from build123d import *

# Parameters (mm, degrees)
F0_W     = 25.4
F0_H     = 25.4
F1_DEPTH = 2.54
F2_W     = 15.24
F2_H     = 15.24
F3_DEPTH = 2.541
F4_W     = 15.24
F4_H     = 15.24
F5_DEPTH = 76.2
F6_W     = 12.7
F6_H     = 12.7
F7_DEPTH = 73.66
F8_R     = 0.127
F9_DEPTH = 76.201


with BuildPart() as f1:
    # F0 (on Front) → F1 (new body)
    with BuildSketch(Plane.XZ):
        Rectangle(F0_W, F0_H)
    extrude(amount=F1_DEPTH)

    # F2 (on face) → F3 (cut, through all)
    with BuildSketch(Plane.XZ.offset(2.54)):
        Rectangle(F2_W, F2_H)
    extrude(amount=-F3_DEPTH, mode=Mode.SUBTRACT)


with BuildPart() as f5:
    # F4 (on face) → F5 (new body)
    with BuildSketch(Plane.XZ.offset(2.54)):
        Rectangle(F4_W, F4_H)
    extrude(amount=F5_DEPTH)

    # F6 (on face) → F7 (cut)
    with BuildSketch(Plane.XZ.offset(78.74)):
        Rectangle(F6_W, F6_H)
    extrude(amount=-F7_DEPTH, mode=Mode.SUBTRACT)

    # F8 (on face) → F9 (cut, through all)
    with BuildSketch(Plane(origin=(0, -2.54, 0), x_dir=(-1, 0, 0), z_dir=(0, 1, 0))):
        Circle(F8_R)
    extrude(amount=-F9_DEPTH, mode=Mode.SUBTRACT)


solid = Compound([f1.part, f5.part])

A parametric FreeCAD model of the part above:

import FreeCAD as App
import Part
import Sketcher
from FreeCAD import Vector
Q = App.Units.Quantity


def add_polygon(sketch, points):
    """Adds a closed chain of lines whose ends are joined by coincident constraints."""
    first, n = sketch.GeometryCount, len(points)
    for a, b in zip(points, points[1:] + points[:1]):
        sketch.addGeometry(Part.LineSegment(App.Vector(*a, 0), App.Vector(*b, 0)), False)
    for i in range(n):
        sketch.addConstraint(Sketcher.Constraint("Coincident", first + i, 2, first + (i + 1) % n, 1))

doc = App.newDocument("Part")
body = doc.addObject("PartDesign::Body", "Body")

sketch1 = doc.addObject("Sketcher::SketchObject", "Sketch")
body.addObject(sketch1)
sketch1.AttachmentSupport = (doc.XZ_Plane, [""])
sketch1.MapMode = "FlatFace"
add_polygon(sketch1, [(-12.7, 12.7), (-12.7, -12.7), (12.7, -12.7), (12.7, 12.7)])
sketch1.addConstraint([
    Sketcher.Constraint("Vertical", 0),
    Sketcher.Constraint("Horizontal", 1),
    Sketcher.Constraint("Vertical", 2),
    Sketcher.Constraint("Horizontal", 3),
    Sketcher.Constraint("Symmetric", 0, 2, 2, 2, -1, 1),
    Sketcher.Constraint("Equal", 3, 0),
    Sketcher.Constraint("DistanceX", 1, 1, 1, 2, Q("1 in")),
])
pad1 = doc.addObject("PartDesign::Pad", "Pad")
body.addObject(pad1)
pad1.Profile = sketch1
pad1.Length = Q("0.1 in")

sketch2 = doc.addObject("Sketcher::SketchObject", "Sketch001")
body.addObject(sketch2)
sketch2.AttachmentSupport = (doc.XZ_Plane, [""])
sketch2.MapMode = "FlatFace"
sketch2.AttachmentOffset = App.Placement(Vector(0, 0, 0.1 * 25.4), App.Rotation())
add_polygon(sketch2, [(-7.62, 7.62), (-7.62, -7.62), (7.62, -7.62), (7.62, 7.62)])
sketch2.addConstraint([
    Sketcher.Constraint("Vertical", 0),
    Sketcher.Constraint("Horizontal", 1),
    Sketcher.Constraint("Vertical", 2),
    Sketcher.Constraint("Horizontal", 3),
    Sketcher.Constraint("Symmetric", 0, 2, 2, 2, -1, 1),
    Sketcher.Constraint("Equal", 3, 0),
    Sketcher.Constraint("DistanceX", 1, 1, 1, 2, Q("0.6 in")),
])
pocket1 = doc.addObject("PartDesign::Pocket", "Pocket")
body.addObject(pocket1)
pocket1.Profile = sketch2
pocket1.Type = "ThroughAll"
body2 = doc.addObject("PartDesign::Body", "Body001")

sketch3 = doc.addObject("Sketcher::SketchObject", "Sketch002")
body2.addObject(sketch3)
sketch3.AttachmentSupport = (doc.getObject("XZ_Plane001"), [""])
sketch3.MapMode = "FlatFace"
sketch3.AttachmentOffset = App.Placement(Vector(0, 0, 0.1 * 25.4), App.Rotation())
add_polygon(sketch3, [(-7.62, 7.62), (-7.62, -7.62), (7.62, -7.62), (7.62, 7.62)])
sketch3.addConstraint([
    Sketcher.Constraint("Vertical", 0),
    Sketcher.Constraint("Horizontal", 1),
    Sketcher.Constraint("Vertical", 2),
    Sketcher.Constraint("Horizontal", 3),
    Sketcher.Constraint("Symmetric", 0, 2, 2, 2, -1, 1),
    Sketcher.Constraint("Equal", 3, 0),
    Sketcher.Constraint("DistanceX", 1, 1, 1, 2, Q("0.6 in")),
])
pad2 = doc.addObject("PartDesign::Pad", "Pad001")
body2.addObject(pad2)
pad2.Profile = sketch3
pad2.Length = Q("3 in")

sketch4 = doc.addObject("Sketcher::SketchObject", "Sketch003")
body2.addObject(sketch4)
sketch4.AttachmentSupport = (doc.getObject("XZ_Plane001"), [""])
sketch4.MapMode = "FlatFace"
sketch4.AttachmentOffset = App.Placement(Vector(0, 0, 3.1 * 25.4), App.Rotation())
add_polygon(sketch4, [(-6.35, 6.35), (-6.35, -6.35), (6.35, -6.35), (6.35, 6.35)])
sketch4.addConstraint([
    Sketcher.Constraint("Vertical", 0),
    Sketcher.Constraint("Horizontal", 1),
    Sketcher.Constraint("Vertical", 2),
    Sketcher.Constraint("Horizontal", 3),
    Sketcher.Constraint("Symmetric", 0, 2, 2, 2, -1, 1),
    Sketcher.Constraint("Equal", 3, 0),
    Sketcher.Constraint("DistanceX", 1, 1, 1, 2, Q("0.5 in")),
])
pocket2 = doc.addObject("PartDesign::Pocket", "Pocket001")
body2.addObject(pocket2)
pocket2.Profile = sketch4
pocket2.Length = Q("2.9 in")

sketch5 = doc.addObject("Sketcher::SketchObject", "Sketch004")
body2.addObject(sketch5)
sketch5.AttachmentSupport = (doc.getObject("XZ_Plane001"), [""])
sketch5.MapMode = "FlatFace"
sketch5.AttachmentOffset = App.Placement(Vector(0, 0, 0.1 * 25.4), App.Rotation())
sketch5.addGeometry(Part.Circle(Vector(0, 0, 0), Vector(0, 0, 1), 0.127), False)
sketch5.addConstraint([
    Sketcher.Constraint("Coincident", 0, 3, -1, 1),
    Sketcher.Constraint("Diameter", 0, Q("0.01 in")),
])
pocket3 = doc.addObject("PartDesign::Pocket", "Pocket002")
body2.addObject(pocket3)
pocket3.Profile = sketch5
pocket3.Type = "ThroughAll"
pocket3.Reversed = True

doc.recompute()
